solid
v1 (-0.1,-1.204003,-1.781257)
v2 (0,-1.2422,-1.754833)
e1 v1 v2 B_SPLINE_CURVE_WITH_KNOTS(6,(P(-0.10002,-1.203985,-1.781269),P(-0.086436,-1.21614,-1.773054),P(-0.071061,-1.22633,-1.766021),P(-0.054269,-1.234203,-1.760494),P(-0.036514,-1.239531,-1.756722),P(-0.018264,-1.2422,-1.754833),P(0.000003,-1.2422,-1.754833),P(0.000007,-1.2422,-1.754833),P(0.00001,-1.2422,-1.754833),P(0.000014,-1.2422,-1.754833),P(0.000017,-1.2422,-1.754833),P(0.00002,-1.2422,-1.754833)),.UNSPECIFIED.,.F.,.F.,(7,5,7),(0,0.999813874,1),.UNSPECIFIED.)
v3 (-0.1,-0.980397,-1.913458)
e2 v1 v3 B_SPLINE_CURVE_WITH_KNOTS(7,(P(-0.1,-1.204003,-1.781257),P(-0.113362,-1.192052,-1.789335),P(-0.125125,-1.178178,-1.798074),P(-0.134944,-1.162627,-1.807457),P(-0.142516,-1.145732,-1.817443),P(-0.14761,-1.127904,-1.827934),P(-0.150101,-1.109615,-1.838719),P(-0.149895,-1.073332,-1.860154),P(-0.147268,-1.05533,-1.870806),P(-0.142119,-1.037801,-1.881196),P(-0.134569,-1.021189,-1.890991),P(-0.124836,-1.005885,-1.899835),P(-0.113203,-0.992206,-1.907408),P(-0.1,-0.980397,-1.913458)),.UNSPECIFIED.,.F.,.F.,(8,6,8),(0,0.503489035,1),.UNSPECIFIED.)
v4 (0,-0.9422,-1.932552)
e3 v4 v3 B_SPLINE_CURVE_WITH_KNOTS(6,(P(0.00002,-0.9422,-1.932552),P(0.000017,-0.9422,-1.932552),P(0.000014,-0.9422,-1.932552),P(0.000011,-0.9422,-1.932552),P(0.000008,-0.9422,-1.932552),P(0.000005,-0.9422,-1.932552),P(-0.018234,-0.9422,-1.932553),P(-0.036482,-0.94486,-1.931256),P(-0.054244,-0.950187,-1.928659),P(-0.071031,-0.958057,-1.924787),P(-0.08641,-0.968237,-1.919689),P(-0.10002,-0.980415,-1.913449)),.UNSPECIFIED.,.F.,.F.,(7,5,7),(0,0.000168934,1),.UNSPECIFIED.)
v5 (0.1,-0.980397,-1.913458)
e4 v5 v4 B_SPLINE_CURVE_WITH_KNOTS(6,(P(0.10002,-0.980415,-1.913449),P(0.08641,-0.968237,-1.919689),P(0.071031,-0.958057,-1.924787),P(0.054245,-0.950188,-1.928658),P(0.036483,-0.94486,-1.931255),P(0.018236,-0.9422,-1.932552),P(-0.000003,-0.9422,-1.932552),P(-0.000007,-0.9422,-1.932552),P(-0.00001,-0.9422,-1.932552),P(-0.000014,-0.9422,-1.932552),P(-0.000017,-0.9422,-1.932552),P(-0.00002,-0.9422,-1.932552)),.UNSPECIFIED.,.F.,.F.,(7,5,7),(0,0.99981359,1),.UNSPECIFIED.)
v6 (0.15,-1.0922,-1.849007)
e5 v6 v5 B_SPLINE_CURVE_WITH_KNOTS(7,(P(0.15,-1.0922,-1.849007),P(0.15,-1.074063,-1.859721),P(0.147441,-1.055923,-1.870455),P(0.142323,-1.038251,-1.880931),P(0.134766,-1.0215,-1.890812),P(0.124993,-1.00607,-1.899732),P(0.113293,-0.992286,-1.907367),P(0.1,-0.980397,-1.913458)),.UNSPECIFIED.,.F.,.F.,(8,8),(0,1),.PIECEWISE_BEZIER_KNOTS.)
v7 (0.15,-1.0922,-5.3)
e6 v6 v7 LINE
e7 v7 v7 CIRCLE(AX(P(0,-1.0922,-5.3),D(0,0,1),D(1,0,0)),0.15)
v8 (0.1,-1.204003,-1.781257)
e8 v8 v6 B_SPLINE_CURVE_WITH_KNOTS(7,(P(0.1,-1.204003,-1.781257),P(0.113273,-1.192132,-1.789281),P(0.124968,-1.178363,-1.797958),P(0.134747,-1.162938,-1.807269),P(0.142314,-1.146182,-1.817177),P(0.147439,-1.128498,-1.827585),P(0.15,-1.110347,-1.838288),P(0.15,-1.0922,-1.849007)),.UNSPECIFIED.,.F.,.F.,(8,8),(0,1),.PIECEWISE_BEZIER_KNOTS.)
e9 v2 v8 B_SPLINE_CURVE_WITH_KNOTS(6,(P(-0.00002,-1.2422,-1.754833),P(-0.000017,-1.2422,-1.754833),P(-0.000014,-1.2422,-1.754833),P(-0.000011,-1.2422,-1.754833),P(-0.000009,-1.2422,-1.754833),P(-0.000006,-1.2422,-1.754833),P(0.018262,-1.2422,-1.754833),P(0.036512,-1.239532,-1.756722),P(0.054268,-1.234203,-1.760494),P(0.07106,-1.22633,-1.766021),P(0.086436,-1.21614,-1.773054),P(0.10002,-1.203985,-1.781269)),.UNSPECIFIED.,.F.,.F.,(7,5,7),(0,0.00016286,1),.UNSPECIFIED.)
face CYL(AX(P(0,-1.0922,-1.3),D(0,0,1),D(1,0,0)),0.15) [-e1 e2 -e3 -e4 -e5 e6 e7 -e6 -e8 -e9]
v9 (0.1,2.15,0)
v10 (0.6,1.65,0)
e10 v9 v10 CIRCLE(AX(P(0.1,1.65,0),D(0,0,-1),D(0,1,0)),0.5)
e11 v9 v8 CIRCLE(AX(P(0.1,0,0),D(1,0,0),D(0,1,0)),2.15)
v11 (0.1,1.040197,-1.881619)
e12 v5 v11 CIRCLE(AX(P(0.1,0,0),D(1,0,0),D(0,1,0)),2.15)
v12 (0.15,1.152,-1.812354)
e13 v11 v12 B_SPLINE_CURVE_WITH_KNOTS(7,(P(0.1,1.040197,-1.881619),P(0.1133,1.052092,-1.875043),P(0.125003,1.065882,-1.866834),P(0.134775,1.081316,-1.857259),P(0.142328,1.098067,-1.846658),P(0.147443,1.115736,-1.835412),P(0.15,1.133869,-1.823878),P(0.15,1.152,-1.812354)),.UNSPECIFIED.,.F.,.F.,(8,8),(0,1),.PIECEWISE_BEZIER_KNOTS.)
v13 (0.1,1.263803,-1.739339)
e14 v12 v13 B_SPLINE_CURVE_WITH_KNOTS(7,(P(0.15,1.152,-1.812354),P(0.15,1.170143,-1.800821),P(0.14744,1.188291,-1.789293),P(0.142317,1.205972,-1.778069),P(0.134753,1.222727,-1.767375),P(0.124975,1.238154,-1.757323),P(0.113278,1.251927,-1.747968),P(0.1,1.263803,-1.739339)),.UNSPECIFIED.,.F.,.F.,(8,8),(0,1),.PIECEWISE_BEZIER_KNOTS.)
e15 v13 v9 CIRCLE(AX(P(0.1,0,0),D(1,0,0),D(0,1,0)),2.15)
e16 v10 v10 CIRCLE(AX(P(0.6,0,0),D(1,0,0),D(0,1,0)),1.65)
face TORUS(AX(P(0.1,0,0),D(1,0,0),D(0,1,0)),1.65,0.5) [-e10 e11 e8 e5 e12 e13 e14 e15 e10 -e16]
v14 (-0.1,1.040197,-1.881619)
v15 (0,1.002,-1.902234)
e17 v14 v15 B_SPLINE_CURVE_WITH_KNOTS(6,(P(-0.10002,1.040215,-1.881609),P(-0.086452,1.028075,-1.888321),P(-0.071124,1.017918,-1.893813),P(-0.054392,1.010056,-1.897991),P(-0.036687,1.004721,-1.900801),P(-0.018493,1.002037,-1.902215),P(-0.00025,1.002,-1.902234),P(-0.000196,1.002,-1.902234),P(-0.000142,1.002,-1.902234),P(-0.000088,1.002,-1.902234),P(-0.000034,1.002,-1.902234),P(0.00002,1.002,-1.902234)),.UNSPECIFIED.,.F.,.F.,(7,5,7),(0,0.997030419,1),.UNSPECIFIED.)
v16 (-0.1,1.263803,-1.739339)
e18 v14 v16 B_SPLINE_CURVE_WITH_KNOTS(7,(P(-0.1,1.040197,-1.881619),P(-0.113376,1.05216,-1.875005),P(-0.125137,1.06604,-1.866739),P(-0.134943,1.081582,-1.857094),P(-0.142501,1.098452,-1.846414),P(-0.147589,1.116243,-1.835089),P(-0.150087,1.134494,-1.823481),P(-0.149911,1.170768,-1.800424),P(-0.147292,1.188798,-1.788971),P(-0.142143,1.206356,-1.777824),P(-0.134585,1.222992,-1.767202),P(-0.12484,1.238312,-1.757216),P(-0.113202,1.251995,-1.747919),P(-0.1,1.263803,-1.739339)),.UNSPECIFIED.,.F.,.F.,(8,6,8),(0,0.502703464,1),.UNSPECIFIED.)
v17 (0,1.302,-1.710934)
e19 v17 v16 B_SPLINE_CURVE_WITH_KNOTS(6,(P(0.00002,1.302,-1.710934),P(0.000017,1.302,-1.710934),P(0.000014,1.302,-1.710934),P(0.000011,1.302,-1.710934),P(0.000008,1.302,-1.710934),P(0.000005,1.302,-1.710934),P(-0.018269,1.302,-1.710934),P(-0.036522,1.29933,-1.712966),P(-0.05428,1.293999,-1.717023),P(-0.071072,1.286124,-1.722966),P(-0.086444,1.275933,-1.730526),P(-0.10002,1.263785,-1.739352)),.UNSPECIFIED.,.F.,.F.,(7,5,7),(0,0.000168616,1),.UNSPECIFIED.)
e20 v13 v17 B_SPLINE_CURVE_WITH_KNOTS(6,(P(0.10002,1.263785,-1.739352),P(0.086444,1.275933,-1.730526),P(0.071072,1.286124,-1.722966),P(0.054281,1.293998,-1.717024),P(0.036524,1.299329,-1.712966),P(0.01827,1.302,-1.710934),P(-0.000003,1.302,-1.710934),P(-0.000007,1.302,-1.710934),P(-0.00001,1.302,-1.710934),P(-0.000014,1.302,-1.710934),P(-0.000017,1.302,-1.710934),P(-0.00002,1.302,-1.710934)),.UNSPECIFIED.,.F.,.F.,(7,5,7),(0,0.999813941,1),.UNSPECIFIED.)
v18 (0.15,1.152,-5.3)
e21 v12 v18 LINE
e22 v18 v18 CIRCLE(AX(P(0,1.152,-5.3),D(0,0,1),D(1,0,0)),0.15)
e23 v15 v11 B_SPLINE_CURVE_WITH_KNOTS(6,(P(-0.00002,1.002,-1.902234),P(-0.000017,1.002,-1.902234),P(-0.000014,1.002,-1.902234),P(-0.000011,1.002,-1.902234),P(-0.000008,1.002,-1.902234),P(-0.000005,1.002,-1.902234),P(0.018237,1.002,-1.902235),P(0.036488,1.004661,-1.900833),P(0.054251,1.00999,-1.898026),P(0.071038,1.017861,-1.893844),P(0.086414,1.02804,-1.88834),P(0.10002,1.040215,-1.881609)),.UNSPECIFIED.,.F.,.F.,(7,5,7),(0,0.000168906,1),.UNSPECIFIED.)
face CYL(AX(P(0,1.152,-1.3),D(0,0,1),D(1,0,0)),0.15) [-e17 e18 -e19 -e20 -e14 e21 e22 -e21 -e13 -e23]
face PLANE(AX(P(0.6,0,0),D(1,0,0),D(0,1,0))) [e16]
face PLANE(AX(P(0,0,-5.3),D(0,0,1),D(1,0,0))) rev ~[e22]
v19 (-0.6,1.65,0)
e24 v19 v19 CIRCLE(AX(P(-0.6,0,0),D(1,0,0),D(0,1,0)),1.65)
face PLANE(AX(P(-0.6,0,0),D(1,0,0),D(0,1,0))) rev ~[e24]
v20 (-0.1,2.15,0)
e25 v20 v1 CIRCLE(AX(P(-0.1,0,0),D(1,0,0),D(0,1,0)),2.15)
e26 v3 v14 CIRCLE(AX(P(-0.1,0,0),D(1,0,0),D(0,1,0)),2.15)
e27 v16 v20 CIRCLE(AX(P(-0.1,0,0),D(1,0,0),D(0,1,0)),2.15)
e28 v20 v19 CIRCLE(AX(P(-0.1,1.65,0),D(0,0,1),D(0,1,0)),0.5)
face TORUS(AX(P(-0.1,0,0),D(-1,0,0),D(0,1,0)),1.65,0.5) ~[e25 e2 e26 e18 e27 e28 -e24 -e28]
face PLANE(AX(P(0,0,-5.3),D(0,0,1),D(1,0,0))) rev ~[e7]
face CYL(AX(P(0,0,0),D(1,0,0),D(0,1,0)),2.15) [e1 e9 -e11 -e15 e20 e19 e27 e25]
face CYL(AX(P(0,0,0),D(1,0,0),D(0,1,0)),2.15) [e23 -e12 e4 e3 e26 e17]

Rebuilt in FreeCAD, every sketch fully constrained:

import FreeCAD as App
import Part
import Sketcher
from FreeCAD import Vector


def edges_at(feature, points):
    """Names of the edges that pass closest to the given points."""
    edges = feature.Shape.Edges
    near = lambda p: min(range(len(edges)), key=lambda i: edges[i].distToShape(Part.Vertex(*p))[0])
    return sorted({f"Edge{near(p) + 1}" for p in points})

doc = App.newDocument("Part")
body = doc.addObject("PartDesign::Body", "Body")

# Sketch on YZ plane
sketch1 = body.newObject("Sketcher::SketchObject", "Sketch")
sketch1.AttachmentSupport = (doc.getObject("YZ_Plane"), [""])
sketch1.MapMode = "FlatFace"
sketch1.addGeometry(Part.Circle(Vector(0, 0, 0), Vector(0, 0, 1), 2.1), False)
sketch1.addConstraint(Sketcher.Constraint("Coincident", 0, 3, -1, 1))
sketch1.addConstraint(Sketcher.Constraint("Diameter", 0, 4.3))
pad1 = body.newObject("PartDesign::Pad", "Pad")
pad1.Profile = sketch1
pad1.Length = 1.2
pad1.Midplane = True
doc.recompute()

fillet = body.newObject("PartDesign::Fillet", "Fillet")
fillet.Base = (pad1, edges_at(pad1, [(0.6, -2.15, 0)]))
fillet.Radius = 0.5
doc.recompute()

fillet2 = body.newObject("PartDesign::Fillet", "Fillet001")
fillet2.Base = (fillet, edges_at(fillet, [(-0.6, -2.15, 0)]))
fillet2.Radius = 0.5

# Sketch on XY plane
sketch2 = body.newObject("Sketcher::SketchObject", "Sketch001")
sketch2.AttachmentSupport = (doc.getObject("XY_Plane"), [""])
sketch2.MapMode = "FlatFace"
sketch2.AttachmentOffset = App.Placement(Vector(0, 0, -1.3), App.Rotation())
sketch2.addGeometry(Part.Circle(Vector(0, -1.09, 0), Vector(0, 0, 1), 0.15), False)
sketch2.addGeometry(Part.Circle(Vector(0, 1.15, 0), Vector(0, 0, 1), 0.15), False)
sketch2.addConstraint(Sketcher.Constraint("Equal", 0, 1))
sketch2.addConstraint(Sketcher.Constraint("PointOnObject", 0, 3, -2))
sketch2.addConstraint(Sketcher.Constraint("PointOnObject", 1, 3, -2))
sketch2.addConstraint(Sketcher.Constraint("Diameter", 0, 0.3))
sketch2.addConstraint(Sketcher.Constraint("DistanceY", -1, 1, 1, 3, 1.152))
sketch2.addConstraint(Sketcher.Constraint("DistanceY", 0, 3, -1, 1, 1.0922))
pad2 = body.newObject("PartDesign::Pad", "Pad001")
pad2.Profile = sketch2
pad2.Length = 4
pad2.Reversed = True

doc.recompute()
